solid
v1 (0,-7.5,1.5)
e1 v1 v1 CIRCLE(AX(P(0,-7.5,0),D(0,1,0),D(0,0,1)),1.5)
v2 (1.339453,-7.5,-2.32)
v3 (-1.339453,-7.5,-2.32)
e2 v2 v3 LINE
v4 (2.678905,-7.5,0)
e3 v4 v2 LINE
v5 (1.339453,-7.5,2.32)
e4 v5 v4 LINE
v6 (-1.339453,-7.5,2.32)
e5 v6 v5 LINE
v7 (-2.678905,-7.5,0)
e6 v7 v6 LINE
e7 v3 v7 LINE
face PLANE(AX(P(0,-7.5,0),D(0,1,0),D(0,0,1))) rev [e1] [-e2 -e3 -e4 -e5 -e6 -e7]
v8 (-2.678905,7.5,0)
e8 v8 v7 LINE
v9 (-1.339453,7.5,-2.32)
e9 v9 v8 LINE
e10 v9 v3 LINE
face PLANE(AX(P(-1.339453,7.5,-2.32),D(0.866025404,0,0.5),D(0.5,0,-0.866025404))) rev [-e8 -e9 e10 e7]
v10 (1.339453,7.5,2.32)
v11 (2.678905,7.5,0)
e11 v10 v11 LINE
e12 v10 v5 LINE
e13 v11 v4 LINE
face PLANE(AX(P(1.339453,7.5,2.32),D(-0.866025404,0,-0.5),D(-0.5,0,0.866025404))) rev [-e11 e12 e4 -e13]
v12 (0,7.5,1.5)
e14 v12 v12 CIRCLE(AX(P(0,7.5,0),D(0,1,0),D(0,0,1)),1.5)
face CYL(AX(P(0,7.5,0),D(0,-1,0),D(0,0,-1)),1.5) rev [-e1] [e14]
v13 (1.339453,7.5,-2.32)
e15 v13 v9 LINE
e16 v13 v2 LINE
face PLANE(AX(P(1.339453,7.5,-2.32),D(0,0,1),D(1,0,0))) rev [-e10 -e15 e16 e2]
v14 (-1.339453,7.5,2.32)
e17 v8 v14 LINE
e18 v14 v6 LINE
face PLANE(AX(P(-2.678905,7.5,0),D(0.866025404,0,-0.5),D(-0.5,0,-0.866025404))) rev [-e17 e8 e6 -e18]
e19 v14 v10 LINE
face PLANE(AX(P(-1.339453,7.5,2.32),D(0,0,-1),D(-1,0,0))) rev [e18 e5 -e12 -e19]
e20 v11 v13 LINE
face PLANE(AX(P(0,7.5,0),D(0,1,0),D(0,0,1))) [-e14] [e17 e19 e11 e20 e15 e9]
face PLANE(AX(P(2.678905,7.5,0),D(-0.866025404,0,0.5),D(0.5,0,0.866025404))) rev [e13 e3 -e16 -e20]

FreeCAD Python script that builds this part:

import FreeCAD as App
import Part
import Sketcher
from FreeCAD import Vector
Q = App.Units.Quantity


def add_polygon(sketch, points):
    """Adds a closed chain of lines whose ends are joined by coincident constraints."""
    first, n = sketch.GeometryCount, len(points)
    for a, b in zip(points, points[1:] + points[:1]):
        sketch.addGeometry(Part.LineSegment(App.Vector(*a, 0), App.Vector(*b, 0)), False)
    for i in range(n):
        sketch.addConstraint(Sketcher.Constraint("Coincident", first + i, 2, first + (i + 1) % n, 1))

doc = App.newDocument("Part")
params = doc.addObject("Spreadsheet::Sheet", "Params")
for row, (alias, value) in enumerate([
    ("sketch1_diameter", "3 mm"),
    ("pad1_length", "15 mm"),
], start=1):
    params.set(f"A{row}", alias)
    params.set(f"B{row}", "=" + value)
    params.setAlias(f"B{row}", alias)

body = doc.addObject("PartDesign::Body", "Body")

# Sketch on XZ plane
sketch1 = body.newObject("Sketcher::SketchObject", "Sketch")
sketch1.AttachmentSupport = (doc.getObject("XZ_Plane"), [""])
sketch1.MapMode = "FlatFace"
add_polygon(sketch1, [(2.678905, 0), (1.339453, -2.32), (-1.339453, -2.32), (-2.678905, 0), (-1.339453, 2.32), (1.339453, 2.32)])  # lines 0-5
sketch1.addGeometry(Part.Circle(Vector(0, 0, 0), Vector(0, 0, 1), 1.5), False)  # 6
sketch1.addConstraint([
    Sketcher.Constraint("Horizontal", 1),
    Sketcher.Constraint("Horizontal", 4),
    Sketcher.Constraint("Coincident", 6, 3, -1, 1),
    Sketcher.Constraint("Symmetric", 0, 2, 3, 2, -1, 1),
    Sketcher.Constraint("Symmetric", 2, 2, 5, 2, -1, 1),
    Sketcher.Constraint("PointOnObject", 2, 2, -1),
    Sketcher.Constraint("Parallel", 2, 5),
    Sketcher.Constraint("Vertical", 1, 2, 3, 2),
    Sketcher.Constraint("Diameter", 6, 3.0),
    Sketcher.Constraint("Angle", 0, Q("-120 deg")),
    Sketcher.Constraint("DistanceY", 0, 2, -1, 1, 2.32),
    Sketcher.Constraint("DistanceX", 1, 2, 1, 1, 2.678905),
])
sketch1.setExpression("Constraints[14]", "Params.sketch1_diameter")
pad1 = body.newObject("PartDesign::Pad", "Pad")
pad1.Profile = sketch1
pad1.setExpression("Length", "Params.pad1_length")
pad1.Midplane = True

doc.recompute()
